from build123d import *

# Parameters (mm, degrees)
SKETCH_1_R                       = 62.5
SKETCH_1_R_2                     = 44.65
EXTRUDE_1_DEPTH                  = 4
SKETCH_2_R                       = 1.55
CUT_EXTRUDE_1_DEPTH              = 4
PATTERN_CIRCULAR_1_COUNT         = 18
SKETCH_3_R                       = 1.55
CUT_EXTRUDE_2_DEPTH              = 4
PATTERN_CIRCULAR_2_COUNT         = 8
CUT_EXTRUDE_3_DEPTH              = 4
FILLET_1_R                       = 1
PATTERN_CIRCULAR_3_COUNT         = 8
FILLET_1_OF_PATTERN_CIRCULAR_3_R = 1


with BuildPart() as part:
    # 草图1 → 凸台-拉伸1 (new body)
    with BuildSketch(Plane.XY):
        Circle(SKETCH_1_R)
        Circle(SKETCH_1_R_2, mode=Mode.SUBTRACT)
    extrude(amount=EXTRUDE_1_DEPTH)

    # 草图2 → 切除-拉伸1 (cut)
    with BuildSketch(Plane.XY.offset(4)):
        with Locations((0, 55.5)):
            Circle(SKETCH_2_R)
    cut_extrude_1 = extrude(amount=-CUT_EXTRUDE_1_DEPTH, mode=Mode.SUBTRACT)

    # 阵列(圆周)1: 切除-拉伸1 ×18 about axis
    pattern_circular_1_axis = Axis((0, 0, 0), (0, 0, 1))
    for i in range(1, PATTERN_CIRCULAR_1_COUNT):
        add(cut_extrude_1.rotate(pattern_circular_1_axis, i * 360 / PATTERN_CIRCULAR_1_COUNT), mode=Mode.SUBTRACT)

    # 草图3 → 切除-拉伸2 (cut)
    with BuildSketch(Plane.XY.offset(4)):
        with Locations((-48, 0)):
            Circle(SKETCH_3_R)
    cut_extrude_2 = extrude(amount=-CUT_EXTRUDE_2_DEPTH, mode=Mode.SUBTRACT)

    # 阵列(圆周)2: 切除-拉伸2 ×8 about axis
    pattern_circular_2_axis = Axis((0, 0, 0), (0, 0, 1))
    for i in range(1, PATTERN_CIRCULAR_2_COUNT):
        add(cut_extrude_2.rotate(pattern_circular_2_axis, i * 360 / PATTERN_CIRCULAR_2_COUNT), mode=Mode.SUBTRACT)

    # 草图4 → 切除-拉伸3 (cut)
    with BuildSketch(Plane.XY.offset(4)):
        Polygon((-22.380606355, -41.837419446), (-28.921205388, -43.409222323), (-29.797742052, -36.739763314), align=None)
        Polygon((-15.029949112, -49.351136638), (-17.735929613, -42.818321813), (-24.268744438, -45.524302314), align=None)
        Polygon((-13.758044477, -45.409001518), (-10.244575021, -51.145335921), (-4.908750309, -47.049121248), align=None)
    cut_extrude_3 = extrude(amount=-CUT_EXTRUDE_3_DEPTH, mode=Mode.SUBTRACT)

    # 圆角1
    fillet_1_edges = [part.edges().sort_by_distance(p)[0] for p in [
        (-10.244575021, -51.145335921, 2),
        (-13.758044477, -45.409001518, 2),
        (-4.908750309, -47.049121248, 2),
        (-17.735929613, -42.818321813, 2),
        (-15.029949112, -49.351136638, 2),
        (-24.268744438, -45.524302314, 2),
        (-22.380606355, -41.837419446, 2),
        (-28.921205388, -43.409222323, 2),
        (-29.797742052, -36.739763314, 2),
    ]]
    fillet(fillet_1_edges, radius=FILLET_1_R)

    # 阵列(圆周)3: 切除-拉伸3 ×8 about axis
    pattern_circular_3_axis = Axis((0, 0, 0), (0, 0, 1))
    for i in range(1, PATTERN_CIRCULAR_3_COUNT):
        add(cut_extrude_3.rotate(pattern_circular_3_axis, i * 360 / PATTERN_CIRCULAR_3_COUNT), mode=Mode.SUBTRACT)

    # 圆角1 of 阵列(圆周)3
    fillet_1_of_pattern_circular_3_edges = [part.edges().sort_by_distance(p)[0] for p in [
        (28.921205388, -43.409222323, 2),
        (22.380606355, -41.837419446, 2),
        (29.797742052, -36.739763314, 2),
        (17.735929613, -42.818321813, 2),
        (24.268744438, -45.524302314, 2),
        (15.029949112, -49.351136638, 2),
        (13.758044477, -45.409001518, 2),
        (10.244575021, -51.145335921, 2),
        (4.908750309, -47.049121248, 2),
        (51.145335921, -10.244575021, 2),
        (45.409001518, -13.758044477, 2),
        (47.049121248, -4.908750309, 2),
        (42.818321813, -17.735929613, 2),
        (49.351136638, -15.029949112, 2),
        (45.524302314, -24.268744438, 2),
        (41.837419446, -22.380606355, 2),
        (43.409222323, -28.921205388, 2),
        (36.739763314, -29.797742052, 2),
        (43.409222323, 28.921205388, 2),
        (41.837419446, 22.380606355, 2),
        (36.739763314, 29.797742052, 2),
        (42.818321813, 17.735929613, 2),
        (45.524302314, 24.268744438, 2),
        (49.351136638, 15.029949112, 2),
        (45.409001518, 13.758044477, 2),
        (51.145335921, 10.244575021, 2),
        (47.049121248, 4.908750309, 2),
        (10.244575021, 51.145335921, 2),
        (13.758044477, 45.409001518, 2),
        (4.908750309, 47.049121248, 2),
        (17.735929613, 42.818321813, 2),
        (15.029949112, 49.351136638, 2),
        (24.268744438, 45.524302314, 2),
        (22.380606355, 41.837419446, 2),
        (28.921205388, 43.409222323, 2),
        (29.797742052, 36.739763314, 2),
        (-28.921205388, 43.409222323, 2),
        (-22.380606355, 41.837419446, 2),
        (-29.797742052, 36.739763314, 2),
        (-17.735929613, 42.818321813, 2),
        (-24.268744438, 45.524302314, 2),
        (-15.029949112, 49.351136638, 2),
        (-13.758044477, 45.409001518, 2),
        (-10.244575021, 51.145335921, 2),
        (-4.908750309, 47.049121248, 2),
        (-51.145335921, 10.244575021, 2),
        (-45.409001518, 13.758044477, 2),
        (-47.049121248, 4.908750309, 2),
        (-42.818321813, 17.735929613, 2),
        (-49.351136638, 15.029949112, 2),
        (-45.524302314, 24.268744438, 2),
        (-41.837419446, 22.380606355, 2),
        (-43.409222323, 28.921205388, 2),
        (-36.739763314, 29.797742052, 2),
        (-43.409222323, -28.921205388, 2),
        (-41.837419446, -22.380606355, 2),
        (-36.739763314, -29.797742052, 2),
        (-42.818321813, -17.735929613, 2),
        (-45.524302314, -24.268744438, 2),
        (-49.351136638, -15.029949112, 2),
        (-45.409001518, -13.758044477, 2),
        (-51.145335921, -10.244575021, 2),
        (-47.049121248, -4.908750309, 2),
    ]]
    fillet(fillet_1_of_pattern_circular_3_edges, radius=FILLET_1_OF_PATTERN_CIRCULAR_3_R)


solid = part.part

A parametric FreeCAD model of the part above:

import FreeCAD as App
import Part
import Sketcher
Q = App.Units.Quantity


def edges_at(feature, points):
    """Names of the edges that pass closest to the given points."""
    edges = feature.Shape.Edges
    near = lambda p: min(range(len(edges)), key=lambda i: edges[i].distToShape(Part.Vertex(*p))[0])
    return sorted({f"Edge{near(p) + 1}" for p in points})


def add_polygon(sketch, points):
    """Adds a closed chain of lines whose ends are joined by coincident constraints."""
    first, n = sketch.GeometryCount, len(points)
    for a, b in zip(points, points[1:] + points[:1]):
        sketch.addGeometry(Part.LineSegment(App.Vector(*a, 0), App.Vector(*b, 0)), False)
    for i in range(n):
        sketch.addConstraint(Sketcher.Constraint("Coincident", first + i, 2, first + (i + 1) % n, 1))

doc = App.newDocument("Part")
body = doc.addObject("PartDesign::Body", "Body")

sketch1 = doc.addObject("Sketcher::SketchObject", "Sketch")
body.addObject(sketch1)
sketch1.AttachmentSupport = (doc.XY_Plane, [""])
sketch1.MapMode = "FlatFace"
sketch1.addGeometry([
    Part.Circle(App.Vector(0, 0, 0), App.Vector(0, 0, 1), 62.5),
    Part.Circle(App.Vector(0, 0, 0), App.Vector(0, 0, 1), 44.65),
], False)
sketch1.addConstraint([
    Sketcher.Constraint("Coincident", 0, 3, -1, 1),
    Sketcher.Constraint("Coincident", 1, 3, -1, 1),
    Sketcher.Constraint("Diameter", 0, 125.0),
    Sketcher.Constraint("Diameter", 1, 89.3),
])
pad1 = doc.addObject("PartDesign::Pad", "Pad")
body.addObject(pad1)
pad1.Profile = sketch1
pad1.Length = 4

sketch2 = doc.addObject("Sketcher::SketchObject", "Sketch001")
body.addObject(sketch2)
sketch2.AttachmentSupport = (doc.XY_Plane, [""])
sketch2.MapMode = "FlatFace"
sketch2.AttachmentOffset = App.Placement(App.Vector(0, 0, 4), App.Rotation())
sketch2.addGeometry(Part.Circle(App.Vector(0, 55.5, 0), App.Vector(0, 0, 1), 1.55), False)
sketch2.addConstraint([
    Sketcher.Constraint("PointOnObject", 0, 3, -2),
    Sketcher.Constraint("Diameter", 0, 3.1),
    Sketcher.Constraint("DistanceY", -1, 1, 0, 3, 55.5),
])
pocket1 = doc.addObject("PartDesign::Pocket", "Pocket")
body.addObject(pocket1)
pocket1.Profile = sketch2
pocket1.Length = 4
doc.recompute()

polarpattern = doc.addObject("PartDesign::PolarPattern", "PolarPattern")
body.addObject(polarpattern)
polarpattern.Originals = [pocket1]
polarpattern.Axis = (doc.Z_Axis, [""])
polarpattern.Angle = 360
polarpattern.Occurrences = 18
body.Tip = polarpattern

sketch3 = doc.addObject("Sketcher::SketchObject", "Sketch002")
body.addObject(sketch3)
sketch3.AttachmentSupport = (doc.XY_Plane, [""])
sketch3.MapMode = "FlatFace"
sketch3.AttachmentOffset = App.Placement(App.Vector(0, 0, 4), App.Rotation())
sketch3.addGeometry(Part.Circle(App.Vector(-48, 0, 0), App.Vector(0, 0, 1), 1.55), False)
sketch3.addConstraint([
    Sketcher.Constraint("PointOnObject", 0, 3, -1),
    Sketcher.Constraint("Diameter", 0, 3.1),
    Sketcher.Constraint("DistanceX", 0, 3, -1, 1, 48.0),
])
pocket2 = doc.addObject("PartDesign::Pocket", "Pocket001")
body.addObject(pocket2)
pocket2.Profile = sketch3
pocket2.Length = 4
doc.recompute()

polarpattern2 = doc.addObject("PartDesign::PolarPattern", "PolarPattern001")
body.addObject(polarpattern2)
polarpattern2.Originals = [pocket2]
polarpattern2.Axis = (doc.Z_Axis, [""])
polarpattern2.Angle = 360
polarpattern2.Occurrences = 8
body.Tip = polarpattern2

sketch4 = doc.addObject("Sketcher::SketchObject", "Sketch003")
body.addObject(sketch4)
sketch4.AttachmentSupport = (doc.XY_Plane, [""])
sketch4.MapMode = "FlatFace"
sketch4.AttachmentOffset = App.Placement(App.Vector(0, 0, 4), App.Rotation())
add_polygon(sketch4, [(-28.921205, -43.409222), (-22.380606, -41.837419), (-29.797742, -36.739763)])
add_polygon(sketch4, [(-15.029949, -49.351137), (-17.73593, -42.818322), (-24.268744, -45.524302)])
add_polygon(sketch4, [(-13.758044, -45.409002), (-10.244575, -51.145336), (-4.90875, -47.049121)])
sketch4.addConstraint([
    Sketcher.Constraint("Perpendicular", 3, 4),
    Sketcher.Constraint("Equal", 0, 2),
    Sketcher.Constraint("Equal", 3, 4),
    Sketcher.Constraint("Equal", 2, 6),
    Sketcher.Constraint("Equal", 6, 7),
    Sketcher.Constraint("Equal", 1, 8),
    Sketcher.Constraint("Distance", 1, 9.0),
    Sketcher.Constraint("Distance", 5, 10.0),
    Sketcher.Constraint("Angle", 1, Q("145.5 deg")),
    Sketcher.Constraint("Angle", 3, Q("112.5 deg")),
    Sketcher.Constraint("Angle", 8, Q("169.5 deg")),
    Sketcher.Constraint("DistanceY", 8, 2, -1, 1, 45.409002),
    Sketcher.Constraint("DistanceX", 2, 2, 0, 2, 6.540599),
    Sketcher.Constraint("DistanceY", 2, 2, 3, 2, 0.590901),
    Sketcher.Constraint("DistanceY", 6, 2, 5, 2, 1.794199),
    Sketcher.Constraint("DistanceX", 5, 2, 7, 2, 10.121199),
    Sketcher.Constraint("DistanceX", 3, 2, -1, 1, 17.73593),
    Sketcher.Constraint("DistanceX", 4, 2, 0, 2, 1.888138),
])
pocket3 = doc.addObject("PartDesign::Pocket", "Pocket002")
body.addObject(pocket3)
pocket3.Profile = sketch4
pocket3.Length = 4
doc.recompute()

fillet = doc.addObject("PartDesign::Fillet", "Fillet")
body.addObject(fillet)
fillet.Base = (pocket3, edges_at(pocket3, [
    (-10.245, -51.145, 2),
    (-13.758, -45.409, 2),
    (-4.909, -47.049, 2),
    (-17.736, -42.818, 2),
    (-15.03, -49.351, 2),
    (-24.269, -45.524, 2),
    (-22.381, -41.837, 2),
    (-28.921, -43.409, 2),
    (-29.798, -36.74, 2),
]))
fillet.Radius = 1
doc.recompute()

polarpattern3 = doc.addObject("PartDesign::PolarPattern", "PolarPattern002")
body.addObject(polarpattern3)
polarpattern3.Originals = [pocket3]
polarpattern3.Axis = (doc.Z_Axis, [""])
polarpattern3.Angle = 360
polarpattern3.Occurrences = 8
body.Tip = polarpattern3
doc.recompute()

fillet2 = doc.addObject("PartDesign::Fillet", "Fillet001")
body.addObject(fillet2)
fillet2.Base = (polarpattern3, edges_at(polarpattern3, [
    (28.921, -43.409, 2),
    (22.381, -41.837, 2),
    (29.798, -36.74, 2),
    (17.736, -42.818, 2),
    (24.269, -45.524, 2),
    (15.03, -49.351, 2),
    (13.758, -45.409, 2),
    (10.245, -51.145, 2),
    (4.909, -47.049, 2),
    (51.145, -10.245, 2),
    (45.409, -13.758, 2),
    (47.049, -4.909, 2),
    (42.818, -17.736, 2),
    (49.351, -15.03, 2),
    (45.524, -24.269, 2),
    (41.837, -22.381, 2),
    (43.409, -28.921, 2),
    (36.74, -29.798, 2),
    (43.409, 28.921, 2),
    (41.837, 22.381, 2),
    (36.74, 29.798, 2),
    (42.818, 17.736, 2),
    (45.524, 24.269, 2),
    (49.351, 15.03, 2),
    (45.409, 13.758, 2),
    (51.145, 10.245, 2),
    (47.049, 4.909, 2),
    (10.245, 51.145, 2),
    (13.758, 45.409, 2),
    (4.909, 47.049, 2),
    (17.736, 42.818, 2),
    (15.03, 49.351, 2),
    (24.269, 45.524, 2),
    (22.381, 41.837, 2),
    (28.921, 43.409, 2),
    (29.798, 36.74, 2),
    (-28.921, 43.409, 2),
    (-22.381, 41.837, 2),
    (-29.798, 36.74, 2),
    (-17.736, 42.818, 2),
    (-24.269, 45.524, 2),
    (-15.03, 49.351, 2),
    (-13.758, 45.409, 2),
    (-10.245, 51.145, 2),
    (-4.909, 47.049, 2),
    (-51.145, 10.245, 2),
    (-45.409, 13.758, 2),
    (-47.049, 4.909, 2),
    (-42.818, 17.736, 2),
    (-49.351, 15.03, 2),
    (-45.524, 24.269, 2),
    (-41.837, 22.381, 2),
    (-43.409, 28.921, 2),
    (-36.74, 29.798, 2),
    (-43.409, -28.921, 2),
    (-41.837, -22.381, 2),
    (-36.74, -29.798, 2),
    (-42.818, -17.736, 2),
    (-45.524, -24.269, 2),
    (-49.351, -15.03, 2),
    (-45.409, -13.758, 2),
    (-51.145, -10.245, 2),
    (-47.049, -4.909, 2),
]))
fillet2.Radius = 1

doc.recompute()
